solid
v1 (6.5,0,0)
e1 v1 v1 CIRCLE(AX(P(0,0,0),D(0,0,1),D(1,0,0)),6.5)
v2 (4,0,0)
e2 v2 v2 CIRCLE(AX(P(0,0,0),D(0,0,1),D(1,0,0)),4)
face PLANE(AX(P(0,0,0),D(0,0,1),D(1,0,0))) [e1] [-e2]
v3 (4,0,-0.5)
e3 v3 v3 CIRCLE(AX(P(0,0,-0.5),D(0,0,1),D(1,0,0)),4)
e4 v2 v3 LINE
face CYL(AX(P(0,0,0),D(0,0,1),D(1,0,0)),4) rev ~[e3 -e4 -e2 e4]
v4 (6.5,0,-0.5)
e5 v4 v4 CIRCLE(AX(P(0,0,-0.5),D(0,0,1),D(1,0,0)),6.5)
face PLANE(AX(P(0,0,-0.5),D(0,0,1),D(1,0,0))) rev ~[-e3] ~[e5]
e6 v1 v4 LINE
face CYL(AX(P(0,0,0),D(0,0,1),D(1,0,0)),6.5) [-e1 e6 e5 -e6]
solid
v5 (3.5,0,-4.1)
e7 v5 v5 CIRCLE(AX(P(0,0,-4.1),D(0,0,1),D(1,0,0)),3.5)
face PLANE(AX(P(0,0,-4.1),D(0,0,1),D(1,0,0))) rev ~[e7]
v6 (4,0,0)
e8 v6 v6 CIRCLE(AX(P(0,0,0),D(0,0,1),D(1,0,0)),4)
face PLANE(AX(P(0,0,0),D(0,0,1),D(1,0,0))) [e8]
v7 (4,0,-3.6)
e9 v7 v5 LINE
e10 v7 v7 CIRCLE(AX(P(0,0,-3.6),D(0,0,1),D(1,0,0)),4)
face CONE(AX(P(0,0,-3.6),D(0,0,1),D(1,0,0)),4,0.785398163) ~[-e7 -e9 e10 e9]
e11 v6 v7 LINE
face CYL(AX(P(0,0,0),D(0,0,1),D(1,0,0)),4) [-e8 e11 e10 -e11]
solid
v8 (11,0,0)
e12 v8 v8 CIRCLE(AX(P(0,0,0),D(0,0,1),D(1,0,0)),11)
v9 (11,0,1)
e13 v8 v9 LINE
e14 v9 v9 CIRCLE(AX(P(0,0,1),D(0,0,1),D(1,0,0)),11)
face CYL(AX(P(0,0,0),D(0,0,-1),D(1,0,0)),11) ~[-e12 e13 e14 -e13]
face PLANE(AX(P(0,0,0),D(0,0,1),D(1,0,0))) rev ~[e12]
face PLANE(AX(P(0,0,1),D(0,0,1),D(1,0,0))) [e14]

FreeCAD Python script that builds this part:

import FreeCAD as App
import Part
import Sketcher
Q = App.Units.Quantity


def edges_at(feature, points):
    """Names of the edges that pass closest to the given points."""
    edges = feature.Shape.Edges
    near = lambda p: min(range(len(edges)), key=lambda i: edges[i].distToShape(Part.Vertex(*p))[0])
    return sorted({f"Edge{near(p) + 1}" for p in points})

doc = App.newDocument("Part")
body = doc.addObject("PartDesign::Body", "Body")

# Sketch on XY plane
sketch1 = body.newObject("Sketcher::SketchObject", "Sketch")
sketch1.AttachmentSupport = (doc.getObject("XY_Plane"), [""])
sketch1.MapMode = "FlatFace"
sketch1.addGeometry(Part.Circle(App.Vector(0, 0, 0), App.Vector(0, 0, 1), 4), False)
sketch1.addConstraint([
    Sketcher.Constraint("Coincident", 0, 3, -1, 1),
    Sketcher.Constraint("Diameter", 0, Q("8 mm")),
])
pad1 = body.newObject("PartDesign::Pad", "Pad")
pad1.Profile = sketch1
pad1.Length = 4.1
pad1.Reversed = True
doc.recompute()

chamfer = body.newObject("PartDesign::Chamfer", "Chamfer")
chamfer.Base = (pad1, edges_at(pad1, [(-4, 0, -4.1)]))
chamfer.Size = 0.5
body2 = doc.addObject("PartDesign::Body", "Body001")

# Sketch on XY plane
sketch2 = body2.newObject("Sketcher::SketchObject", "Sketch001")
sketch2.AttachmentSupport = (doc.getObject("XY_Plane001"), [""])
sketch2.MapMode = "FlatFace"
sketch2.addGeometry([
    Part.Circle(App.Vector(0, 0, 0), App.Vector(0, 0, 1), 6.5),
    Part.Circle(App.Vector(0, 0, 0), App.Vector(0, 0, 1), 4),
], False)
sketch2.addConstraint([
    Sketcher.Constraint("Coincident", 0, 3, -1, 1),
    Sketcher.Constraint("Coincident", 1, 3, -1, 1),
    Sketcher.Constraint("Diameter", 0, Q("13 mm")),
    Sketcher.Constraint("Diameter", 1, Q("8 mm")),
])
pad2 = body2.newObject("PartDesign::Pad", "Pad001")
pad2.Profile = sketch2
pad2.Length = 0.5
pad2.Reversed = True
body3 = doc.addObject("PartDesign::Body", "Body002")

# Sketch on XY plane
sketch3 = body3.newObject("Sketcher::SketchObject", "Sketch002")
sketch3.AttachmentSupport = (doc.getObject("XY_Plane002"), [""])
sketch3.MapMode = "FlatFace"
sketch3.addGeometry(Part.Circle(App.Vector(0, 0, 0), App.Vector(0, 0, 1), 11), False)
sketch3.addConstraint([
    Sketcher.Constraint("Coincident", 0, 3, -1, 1),
    Sketcher.Constraint("Diameter", 0, Q("22 mm")),
])
pad3 = body3.newObject("PartDesign::Pad", "Pad002")
pad3.Profile = sketch3
pad3.Length = 1

doc.recompute()
